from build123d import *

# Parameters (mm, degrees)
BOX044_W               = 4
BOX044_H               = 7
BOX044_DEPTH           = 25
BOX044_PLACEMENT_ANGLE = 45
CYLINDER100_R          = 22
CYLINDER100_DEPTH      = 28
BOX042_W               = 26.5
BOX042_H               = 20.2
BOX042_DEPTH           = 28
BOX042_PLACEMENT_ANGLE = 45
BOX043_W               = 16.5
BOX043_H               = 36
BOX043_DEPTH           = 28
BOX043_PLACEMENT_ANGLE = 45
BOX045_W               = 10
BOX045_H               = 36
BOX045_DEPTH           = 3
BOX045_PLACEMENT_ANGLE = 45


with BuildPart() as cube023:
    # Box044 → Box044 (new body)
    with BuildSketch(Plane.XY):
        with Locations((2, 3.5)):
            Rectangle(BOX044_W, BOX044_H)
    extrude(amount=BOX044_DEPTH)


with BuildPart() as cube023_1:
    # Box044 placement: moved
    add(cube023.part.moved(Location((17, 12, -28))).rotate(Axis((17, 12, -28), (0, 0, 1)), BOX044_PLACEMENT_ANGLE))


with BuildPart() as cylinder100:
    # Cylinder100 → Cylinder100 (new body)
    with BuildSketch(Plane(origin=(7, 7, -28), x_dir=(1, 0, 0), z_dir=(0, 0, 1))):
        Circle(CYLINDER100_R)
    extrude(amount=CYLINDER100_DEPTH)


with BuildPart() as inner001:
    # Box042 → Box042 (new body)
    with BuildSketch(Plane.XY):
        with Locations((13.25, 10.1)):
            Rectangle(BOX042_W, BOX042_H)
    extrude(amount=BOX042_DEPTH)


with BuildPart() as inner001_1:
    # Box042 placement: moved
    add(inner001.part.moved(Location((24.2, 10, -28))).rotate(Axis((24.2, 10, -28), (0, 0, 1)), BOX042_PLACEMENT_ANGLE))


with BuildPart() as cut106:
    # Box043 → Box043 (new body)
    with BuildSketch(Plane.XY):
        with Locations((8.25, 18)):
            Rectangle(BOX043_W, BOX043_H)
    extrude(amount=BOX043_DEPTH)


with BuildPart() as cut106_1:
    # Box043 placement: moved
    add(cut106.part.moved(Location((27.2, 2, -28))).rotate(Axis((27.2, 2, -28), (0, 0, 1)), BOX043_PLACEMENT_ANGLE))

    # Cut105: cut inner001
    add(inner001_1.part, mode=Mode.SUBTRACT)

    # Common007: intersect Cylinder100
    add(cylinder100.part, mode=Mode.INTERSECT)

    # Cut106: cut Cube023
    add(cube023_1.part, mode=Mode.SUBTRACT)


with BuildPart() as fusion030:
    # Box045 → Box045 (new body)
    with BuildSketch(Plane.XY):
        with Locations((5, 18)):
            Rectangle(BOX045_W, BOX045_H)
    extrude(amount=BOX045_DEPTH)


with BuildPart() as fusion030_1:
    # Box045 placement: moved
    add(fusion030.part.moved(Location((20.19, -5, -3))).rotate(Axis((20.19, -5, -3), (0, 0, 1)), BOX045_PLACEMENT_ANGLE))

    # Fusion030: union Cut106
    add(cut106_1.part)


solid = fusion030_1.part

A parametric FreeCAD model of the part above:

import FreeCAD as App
import Part
import Sketcher

V = App.Vector


def add_polygon(sketch, points):
    """Adds a closed chain of lines whose ends are joined by coincident constraints."""
    first, n = sketch.GeometryCount, len(points)
    for a, b in zip(points, points[1:] + points[:1]):
        sketch.addGeometry(Part.LineSegment(App.Vector(*a, 0), App.Vector(*b, 0)), False)
    for i in range(n):
        sketch.addConstraint(Sketcher.Constraint("Coincident", first + i, 2, first + (i + 1) % n, 1))

doc = App.newDocument("Part")
body = doc.addObject("PartDesign::Body", "Body")

# Sketch on XY plane
sketch1 = doc.addObject("Sketcher::SketchObject", "Sketch")
body.addObject(sketch1)
sketch1.AttachmentSupport = (doc.XY_Plane, [""])
sketch1.MapMode = "FlatFace"
add_polygon(sketch1, [(0, 7), (0, 0), (4, 0), (4, 7)])  # lines 0-3
sketch1.addConstraint(Sketcher.Constraint("Vertical", 0))
sketch1.addConstraint(Sketcher.Constraint("Horizontal", 1))
sketch1.addConstraint(Sketcher.Constraint("Vertical", 2))
sketch1.addConstraint(Sketcher.Constraint("Horizontal", 3))
sketch1.addConstraint(Sketcher.Constraint("Coincident", 0, 2, -1, 1))
sketch1.addConstraint(Sketcher.Constraint("DistanceX", 1, 1, 1, 2, 4.0))
sketch1.addConstraint(Sketcher.Constraint("DistanceY", 0, 2, 0, 1, 7.0))
pad1 = doc.addObject("PartDesign::Pad", "Pad")
body.addObject(pad1)
pad1.Profile = sketch1
pad1.Length = 25
body2 = doc.addObject("PartDesign::Body", "Body001")
doc.recompute()

body.Placement = App.Placement(V(17, 12, -28), App.Rotation(V(0, 0, 1), 45))
boolean = doc.addObject("PartDesign::Boolean", "Boolean")
body2.addObject(boolean)
boolean.Type = "Fuse"
boolean.addObjects([body])
body3 = doc.addObject("PartDesign::Body", "Body002")

# Sketch on XY plane
sketch2 = doc.addObject("Sketcher::SketchObject", "Sketch001")
body3.addObject(sketch2)
sketch2.AttachmentSupport = (doc.getObject("XY_Plane002"), [""])
sketch2.MapMode = "FlatFace"
sketch2.AttachmentOffset = App.Placement(V(0, 0, -28), App.Rotation())
sketch2.addGeometry(Part.Circle(V(7, 7, 0), V(0, 0, 1), 22), False)
sketch2.addConstraint(Sketcher.Constraint("Diameter", 0, 44.0))
sketch2.addConstraint(Sketcher.Constraint("DistanceX", -1, 1, 0, 3, 7.0))
sketch2.addConstraint(Sketcher.Constraint("DistanceY", -1, 1, 0, 3, 7.0))
pad2 = doc.addObject("PartDesign::Pad", "Pad001")
body3.addObject(pad2)
pad2.Profile = sketch2
pad2.Length = 28
body4 = doc.addObject("PartDesign::Body", "Body003")

# Sketch on XY plane
sketch3 = doc.addObject("Sketcher::SketchObject", "Sketch002")
body4.addObject(sketch3)
sketch3.AttachmentSupport = (doc.getObject("XY_Plane003"), [""])
sketch3.MapMode = "FlatFace"
add_polygon(sketch3, [(0, 20), (0, 0), (26, 0), (26, 20)])  # lines 0-3
sketch3.addConstraint(Sketcher.Constraint("Vertical", 0))
sketch3.addConstraint(Sketcher.Constraint("Horizontal", 1))
sketch3.addConstraint(Sketcher.Constraint("Vertical", 2))
sketch3.addConstraint(Sketcher.Constraint("Horizontal", 3))
sketch3.addConstraint(Sketcher.Constraint("Coincident", 0, 2, -1, 1))
sketch3.addConstraint(Sketcher.Constraint("DistanceX", 1, 1, 1, 2, 26.5))
sketch3.addConstraint(Sketcher.Constraint("DistanceY", 0, 2, 0, 1, 20.2))
pad3 = doc.addObject("PartDesign::Pad", "Pad002")
body4.addObject(pad3)
pad3.Profile = sketch3
pad3.Length = 28
body5 = doc.addObject("PartDesign::Body", "Body004")
doc.recompute()

body4.Placement = App.Placement(V(24.2, 10, -28), App.Rotation(V(0, 0, 1), 45))
boolean2 = doc.addObject("PartDesign::Boolean", "Boolean001")
body5.addObject(boolean2)
boolean2.Type = "Fuse"
boolean2.addObjects([body4])
body6 = doc.addObject("PartDesign::Body", "Body005")

# Sketch on XY plane
sketch4 = doc.addObject("Sketcher::SketchObject", "Sketch003")
body6.addObject(sketch4)
sketch4.AttachmentSupport = (doc.getObject("XY_Plane005"), [""])
sketch4.MapMode = "FlatFace"
add_polygon(sketch4, [(0, 36), (0, 0), (16, 0), (16, 36)])  # lines 0-3
sketch4.addConstraint(Sketcher.Constraint("Vertical", 0))
sketch4.addConstraint(Sketcher.Constraint("Horizontal", 1))
sketch4.addConstraint(Sketcher.Constraint("Vertical", 2))
sketch4.addConstraint(Sketcher.Constraint("Horizontal", 3))
sketch4.addConstraint(Sketcher.Constraint("Coincident", 0, 2, -1, 1))
sketch4.addConstraint(Sketcher.Constraint("DistanceY", 0, 2, 0, 1, 36.0))
sketch4.addConstraint(Sketcher.Constraint("DistanceX", 1, 1, 1, 2, 16.5))
pad4 = doc.addObject("PartDesign::Pad", "Pad003")
body6.addObject(pad4)
pad4.Profile = sketch4
pad4.Length = 28
body7 = doc.addObject("PartDesign::Body", "Body006")
doc.recompute()

body6.Placement = App.Placement(V(27.2, 2, -28), App.Rotation(V(0, 0, 1), 45))
boolean3 = doc.addObject("PartDesign::Boolean", "Boolean002")
body7.addObject(boolean3)
boolean3.Type = "Fuse"
boolean3.addObjects([body6])
doc.recompute()

boolean4 = doc.addObject("PartDesign::Boolean", "Boolean003")
body7.addObject(boolean4)
boolean4.Type = "Cut"
boolean4.addObjects([body5])
doc.recompute()

boolean5 = doc.addObject("PartDesign::Boolean", "Boolean004")
body7.addObject(boolean5)
boolean5.Type = "Common"
boolean5.addObjects([body3])
doc.recompute()

boolean6 = doc.addObject("PartDesign::Boolean", "Boolean005")
body7.addObject(boolean6)
boolean6.Type = "Cut"
boolean6.addObjects([body2])
body8 = doc.addObject("PartDesign::Body", "Body007")

# Sketch on XY plane
sketch5 = doc.addObject("Sketcher::SketchObject", "Sketch004")
body8.addObject(sketch5)
sketch5.AttachmentSupport = (doc.getObject("XY_Plane007"), [""])
sketch5.MapMode = "FlatFace"
add_polygon(sketch5, [(0, 36), (0, 0), (10, 0), (10, 36)])  # lines 0-3
sketch5.addConstraint(Sketcher.Constraint("Vertical", 0))
sketch5.addConstraint(Sketcher.Constraint("Horizontal", 1))
sketch5.addConstraint(Sketcher.Constraint("Vertical", 2))
sketch5.addConstraint(Sketcher.Constraint("Horizontal", 3))
sketch5.addConstraint(Sketcher.Constraint("Coincident", 0, 2, -1, 1))
sketch5.addConstraint(Sketcher.Constraint("DistanceX", 1, 1, 1, 2, 10.0))
sketch5.addConstraint(Sketcher.Constraint("DistanceY", 0, 2, 0, 1, 36.0))
pad5 = doc.addObject("PartDesign::Pad", "Pad004")
body8.addObject(pad5)
pad5.Profile = sketch5
pad5.Length = 3
body9 = doc.addObject("PartDesign::Body", "Body008")
doc.recompute()

body8.Placement = App.Placement(V(20.19, -5, -3), App.Rotation(V(0, 0, 1), 45))
boolean7 = doc.addObject("PartDesign::Boolean", "Boolean006")
body9.addObject(boolean7)
boolean7.Type = "Fuse"
boolean7.addObjects([body8])
doc.recompute()

boolean8 = doc.addObject("PartDesign::Boolean", "Boolean007")
body9.addObject(boolean8)
boolean8.Type = "Fuse"
boolean8.addObjects([body7])

doc.recompute()
